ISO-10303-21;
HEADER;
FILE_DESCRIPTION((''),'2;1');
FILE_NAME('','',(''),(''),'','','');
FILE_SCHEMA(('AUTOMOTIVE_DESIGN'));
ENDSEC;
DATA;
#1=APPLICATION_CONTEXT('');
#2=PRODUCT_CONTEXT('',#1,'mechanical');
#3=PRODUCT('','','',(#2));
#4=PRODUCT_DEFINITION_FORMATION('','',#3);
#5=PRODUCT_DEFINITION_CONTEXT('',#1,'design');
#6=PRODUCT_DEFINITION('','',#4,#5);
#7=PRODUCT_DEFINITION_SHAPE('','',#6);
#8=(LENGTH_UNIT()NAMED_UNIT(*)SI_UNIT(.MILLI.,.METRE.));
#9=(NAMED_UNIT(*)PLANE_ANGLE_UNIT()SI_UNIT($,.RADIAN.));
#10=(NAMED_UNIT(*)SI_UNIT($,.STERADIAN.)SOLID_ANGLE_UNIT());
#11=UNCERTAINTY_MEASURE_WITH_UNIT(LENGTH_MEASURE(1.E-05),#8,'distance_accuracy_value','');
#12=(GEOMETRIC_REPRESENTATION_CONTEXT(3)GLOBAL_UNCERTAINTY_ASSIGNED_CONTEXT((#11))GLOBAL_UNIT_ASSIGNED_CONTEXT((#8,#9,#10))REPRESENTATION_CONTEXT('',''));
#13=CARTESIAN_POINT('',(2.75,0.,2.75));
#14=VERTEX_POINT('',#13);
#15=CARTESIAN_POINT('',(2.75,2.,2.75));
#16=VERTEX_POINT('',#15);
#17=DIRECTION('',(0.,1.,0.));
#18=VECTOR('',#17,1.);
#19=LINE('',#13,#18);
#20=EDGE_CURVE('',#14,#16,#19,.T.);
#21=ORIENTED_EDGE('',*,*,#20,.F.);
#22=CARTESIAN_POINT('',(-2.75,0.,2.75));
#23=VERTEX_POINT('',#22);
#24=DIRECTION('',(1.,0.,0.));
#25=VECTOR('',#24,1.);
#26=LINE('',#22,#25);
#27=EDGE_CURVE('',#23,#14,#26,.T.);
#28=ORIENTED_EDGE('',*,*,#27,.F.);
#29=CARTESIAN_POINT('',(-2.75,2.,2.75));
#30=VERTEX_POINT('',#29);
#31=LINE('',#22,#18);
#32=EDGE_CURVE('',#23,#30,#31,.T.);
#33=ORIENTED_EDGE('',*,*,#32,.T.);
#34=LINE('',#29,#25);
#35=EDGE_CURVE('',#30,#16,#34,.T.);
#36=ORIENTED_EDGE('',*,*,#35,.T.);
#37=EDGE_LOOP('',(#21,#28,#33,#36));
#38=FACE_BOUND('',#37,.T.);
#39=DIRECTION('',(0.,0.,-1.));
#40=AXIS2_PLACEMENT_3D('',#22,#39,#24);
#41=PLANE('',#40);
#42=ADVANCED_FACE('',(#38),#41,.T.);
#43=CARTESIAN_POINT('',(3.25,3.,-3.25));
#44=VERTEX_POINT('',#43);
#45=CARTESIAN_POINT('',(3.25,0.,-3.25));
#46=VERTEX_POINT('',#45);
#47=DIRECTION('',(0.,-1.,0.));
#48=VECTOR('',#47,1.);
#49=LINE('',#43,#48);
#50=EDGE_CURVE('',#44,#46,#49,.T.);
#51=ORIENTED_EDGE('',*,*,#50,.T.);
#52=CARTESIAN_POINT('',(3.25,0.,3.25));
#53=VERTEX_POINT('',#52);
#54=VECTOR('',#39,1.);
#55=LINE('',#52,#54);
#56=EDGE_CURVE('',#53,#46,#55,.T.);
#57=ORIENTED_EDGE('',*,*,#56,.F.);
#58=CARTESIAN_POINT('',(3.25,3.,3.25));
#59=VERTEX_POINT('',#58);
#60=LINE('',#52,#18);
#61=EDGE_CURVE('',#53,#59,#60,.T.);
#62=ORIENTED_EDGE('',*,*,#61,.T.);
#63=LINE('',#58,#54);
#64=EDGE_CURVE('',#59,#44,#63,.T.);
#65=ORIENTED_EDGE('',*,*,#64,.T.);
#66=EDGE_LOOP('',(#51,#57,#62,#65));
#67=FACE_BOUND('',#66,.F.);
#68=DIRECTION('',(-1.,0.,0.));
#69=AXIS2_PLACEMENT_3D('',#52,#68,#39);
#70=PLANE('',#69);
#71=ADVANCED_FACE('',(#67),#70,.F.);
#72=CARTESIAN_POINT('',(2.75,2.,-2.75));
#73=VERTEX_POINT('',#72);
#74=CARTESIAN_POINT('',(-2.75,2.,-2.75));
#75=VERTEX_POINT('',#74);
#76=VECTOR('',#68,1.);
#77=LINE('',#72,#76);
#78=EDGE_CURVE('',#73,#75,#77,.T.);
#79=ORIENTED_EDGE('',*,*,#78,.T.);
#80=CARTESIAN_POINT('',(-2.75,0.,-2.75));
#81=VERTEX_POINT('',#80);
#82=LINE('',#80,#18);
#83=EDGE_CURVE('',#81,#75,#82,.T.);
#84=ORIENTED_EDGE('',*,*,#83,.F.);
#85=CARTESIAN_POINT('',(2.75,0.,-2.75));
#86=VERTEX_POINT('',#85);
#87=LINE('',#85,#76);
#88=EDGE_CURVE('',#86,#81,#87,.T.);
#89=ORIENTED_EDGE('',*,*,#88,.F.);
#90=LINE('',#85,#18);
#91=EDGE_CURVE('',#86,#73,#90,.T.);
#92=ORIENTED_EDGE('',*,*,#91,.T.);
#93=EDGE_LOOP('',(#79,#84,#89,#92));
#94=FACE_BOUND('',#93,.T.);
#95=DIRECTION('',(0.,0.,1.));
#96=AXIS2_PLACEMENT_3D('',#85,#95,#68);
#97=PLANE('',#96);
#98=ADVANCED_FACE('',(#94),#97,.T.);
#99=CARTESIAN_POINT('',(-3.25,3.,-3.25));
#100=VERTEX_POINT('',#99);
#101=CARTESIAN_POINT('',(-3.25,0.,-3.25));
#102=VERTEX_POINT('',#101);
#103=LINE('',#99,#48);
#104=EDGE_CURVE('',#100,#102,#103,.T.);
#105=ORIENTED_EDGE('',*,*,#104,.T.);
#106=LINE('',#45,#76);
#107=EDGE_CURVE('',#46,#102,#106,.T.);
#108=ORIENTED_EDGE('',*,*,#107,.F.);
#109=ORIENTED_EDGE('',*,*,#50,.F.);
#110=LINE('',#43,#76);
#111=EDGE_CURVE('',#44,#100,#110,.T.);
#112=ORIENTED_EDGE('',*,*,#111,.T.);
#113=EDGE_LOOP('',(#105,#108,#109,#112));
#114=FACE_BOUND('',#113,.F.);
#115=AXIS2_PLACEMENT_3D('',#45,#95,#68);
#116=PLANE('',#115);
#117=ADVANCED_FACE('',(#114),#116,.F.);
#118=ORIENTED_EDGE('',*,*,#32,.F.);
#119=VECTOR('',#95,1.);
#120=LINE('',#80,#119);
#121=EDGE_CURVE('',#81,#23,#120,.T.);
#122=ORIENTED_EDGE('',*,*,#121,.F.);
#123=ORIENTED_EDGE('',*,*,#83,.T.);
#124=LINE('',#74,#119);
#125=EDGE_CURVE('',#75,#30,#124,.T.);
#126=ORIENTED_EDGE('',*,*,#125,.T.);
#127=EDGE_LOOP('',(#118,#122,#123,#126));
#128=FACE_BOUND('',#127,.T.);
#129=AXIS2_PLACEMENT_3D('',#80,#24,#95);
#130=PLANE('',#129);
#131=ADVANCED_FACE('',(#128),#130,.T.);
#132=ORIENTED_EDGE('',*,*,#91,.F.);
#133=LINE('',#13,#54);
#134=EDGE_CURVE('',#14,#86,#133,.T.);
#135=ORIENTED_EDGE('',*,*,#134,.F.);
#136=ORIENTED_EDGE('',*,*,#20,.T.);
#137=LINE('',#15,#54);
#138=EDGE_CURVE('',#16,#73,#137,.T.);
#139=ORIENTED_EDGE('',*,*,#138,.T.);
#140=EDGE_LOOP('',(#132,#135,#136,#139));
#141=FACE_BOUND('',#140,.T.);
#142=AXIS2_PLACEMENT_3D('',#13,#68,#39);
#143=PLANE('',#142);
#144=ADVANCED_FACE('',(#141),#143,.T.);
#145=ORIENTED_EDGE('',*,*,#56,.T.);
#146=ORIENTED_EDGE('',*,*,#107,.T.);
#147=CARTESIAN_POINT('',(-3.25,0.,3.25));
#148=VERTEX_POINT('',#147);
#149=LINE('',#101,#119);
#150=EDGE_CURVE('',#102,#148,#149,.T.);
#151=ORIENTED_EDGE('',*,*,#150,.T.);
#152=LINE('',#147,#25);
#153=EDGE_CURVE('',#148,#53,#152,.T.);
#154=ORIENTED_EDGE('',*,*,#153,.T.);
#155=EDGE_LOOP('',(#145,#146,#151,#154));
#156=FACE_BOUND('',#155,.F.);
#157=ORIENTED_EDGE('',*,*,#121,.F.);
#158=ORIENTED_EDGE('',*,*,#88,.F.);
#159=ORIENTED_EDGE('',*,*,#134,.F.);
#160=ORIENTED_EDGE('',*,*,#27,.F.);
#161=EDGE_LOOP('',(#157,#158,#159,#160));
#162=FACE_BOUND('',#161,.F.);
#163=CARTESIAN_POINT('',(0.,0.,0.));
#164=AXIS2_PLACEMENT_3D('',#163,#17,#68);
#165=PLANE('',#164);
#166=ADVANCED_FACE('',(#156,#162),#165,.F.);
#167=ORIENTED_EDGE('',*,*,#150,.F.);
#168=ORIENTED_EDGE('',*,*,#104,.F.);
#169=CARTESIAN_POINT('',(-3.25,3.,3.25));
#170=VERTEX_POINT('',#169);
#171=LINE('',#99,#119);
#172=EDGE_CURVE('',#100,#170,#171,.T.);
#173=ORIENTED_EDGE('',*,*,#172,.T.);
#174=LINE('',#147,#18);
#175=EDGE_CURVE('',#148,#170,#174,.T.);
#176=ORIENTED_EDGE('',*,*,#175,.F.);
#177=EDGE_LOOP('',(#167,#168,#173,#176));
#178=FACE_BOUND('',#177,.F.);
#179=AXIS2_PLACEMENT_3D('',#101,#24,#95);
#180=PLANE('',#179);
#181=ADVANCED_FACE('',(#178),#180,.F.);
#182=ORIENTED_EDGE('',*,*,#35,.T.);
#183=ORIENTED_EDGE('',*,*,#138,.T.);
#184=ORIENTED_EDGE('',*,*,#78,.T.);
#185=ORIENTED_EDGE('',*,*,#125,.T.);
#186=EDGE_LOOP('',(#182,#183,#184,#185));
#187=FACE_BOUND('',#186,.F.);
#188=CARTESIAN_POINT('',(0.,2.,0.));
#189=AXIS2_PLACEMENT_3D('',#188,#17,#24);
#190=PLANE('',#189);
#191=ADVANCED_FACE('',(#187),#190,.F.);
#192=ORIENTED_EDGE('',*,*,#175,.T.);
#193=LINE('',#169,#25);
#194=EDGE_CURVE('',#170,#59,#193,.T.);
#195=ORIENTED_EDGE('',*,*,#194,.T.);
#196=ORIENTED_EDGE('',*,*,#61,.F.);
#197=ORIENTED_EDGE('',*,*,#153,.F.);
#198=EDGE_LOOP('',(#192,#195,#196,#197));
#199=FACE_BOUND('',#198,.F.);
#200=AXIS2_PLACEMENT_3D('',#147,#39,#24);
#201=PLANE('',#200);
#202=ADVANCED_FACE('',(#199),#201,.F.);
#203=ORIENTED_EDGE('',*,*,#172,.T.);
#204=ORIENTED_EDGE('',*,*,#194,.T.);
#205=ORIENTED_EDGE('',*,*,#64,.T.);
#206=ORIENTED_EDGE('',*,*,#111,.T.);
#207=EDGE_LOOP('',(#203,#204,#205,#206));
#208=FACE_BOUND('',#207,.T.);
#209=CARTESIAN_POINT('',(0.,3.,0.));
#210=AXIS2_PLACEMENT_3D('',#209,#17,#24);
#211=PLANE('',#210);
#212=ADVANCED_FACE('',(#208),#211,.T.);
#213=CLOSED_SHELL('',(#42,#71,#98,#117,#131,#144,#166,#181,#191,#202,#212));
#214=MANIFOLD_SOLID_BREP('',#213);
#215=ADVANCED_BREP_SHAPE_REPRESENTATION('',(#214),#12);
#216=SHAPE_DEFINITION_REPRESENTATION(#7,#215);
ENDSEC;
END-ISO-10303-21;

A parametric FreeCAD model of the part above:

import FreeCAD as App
import Part
import Sketcher

doc = App.newDocument("Part")
body = doc.addObject("PartDesign::Body", "Body")

# Sketch on XZ plane
sketch1 = body.newObject("Sketcher::SketchObject", "Sketch")
sketch1.AttachmentSupport = (doc.getObject("XZ_Plane"), [""])
sketch1.MapMode = "FlatFace"
sketch1.addGeometry([
    Part.LineSegment(App.Vector(-3, -3, 0), App.Vector(-3, 3, 0)),  # 0
    Part.LineSegment(App.Vector(-3, 3, 0), App.Vector(3, 3, 0)),  # 1
    Part.LineSegment(App.Vector(3, 3, 0), App.Vector(3, -3, 0)),  # 2
    Part.LineSegment(App.Vector(3, -3, 0), App.Vector(-3, -3, 0)),  # 3
    Part.LineSegment(App.Vector(-3, -3, 0), App.Vector(3, -3, 0)),  # 4
    Part.LineSegment(App.Vector(3, -3, 0), App.Vector(3, 3, 0)),  # 5
    Part.LineSegment(App.Vector(3, 3, 0), App.Vector(-3, 3, 0)),  # 6
    Part.LineSegment(App.Vector(-3, 3, 0), App.Vector(-3, -3, 0)),  # 7
], False)
sketch1.addConstraint([
    Sketcher.Constraint("Coincident", 0, 2, 1, 1),
    Sketcher.Constraint("Coincident", 1, 2, 2, 1),
    Sketcher.Constraint("Coincident", 2, 2, 3, 1),
    Sketcher.Constraint("Coincident", 3, 2, 0, 1),
    Sketcher.Constraint("Coincident", 4, 2, 5, 1),
    Sketcher.Constraint("Coincident", 5, 2, 6, 1),
    Sketcher.Constraint("Coincident", 6, 2, 7, 1),
    Sketcher.Constraint("Coincident", 7, 2, 4, 1),
    Sketcher.Constraint("Vertical", 0),
    Sketcher.Constraint("Horizontal", 1),
    Sketcher.Constraint("Vertical", 2),
    Sketcher.Constraint("Horizontal", 3),
    Sketcher.Constraint("Horizontal", 4),
    Sketcher.Constraint("Vertical", 5),
    Sketcher.Constraint("Horizontal", 6),
    Sketcher.Constraint("Vertical", 7),
    Sketcher.Constraint("Symmetric", 0, 2, 2, 2, -1, 1),
    Sketcher.Constraint("Symmetric", 4, 2, 6, 2, -1, 1),
    Sketcher.Constraint("Equal", 3, 0),
    Sketcher.Constraint("Equal", 6, 5),
    Sketcher.Constraint("DistanceX", 1, 1, 1, 2, 6.5),
    Sketcher.Constraint("DistanceX", 4, 1, 4, 2, 5.5),
])
pad1 = body.newObject("PartDesign::Pad", "Pad")
pad1.Profile = sketch1
pad1.Length = 2
pad1.Reversed = True

# Sketch on XZ plane
sketch2 = body.newObject("Sketcher::SketchObject", "Sketch001")
sketch2.AttachmentSupport = (doc.getObject("XZ_Plane"), [""])
sketch2.MapMode = "FlatFace"
sketch2.AttachmentOffset = App.Placement(App.Vector(0, 0, -2), App.Rotation())
sketch2.addGeometry([
    Part.LineSegment(App.Vector(3, -3, 0), App.Vector(-3, -3, 0)),
    Part.LineSegment(App.Vector(-3, -3, 0), App.Vector(-3, 3, 0)),
    Part.LineSegment(App.Vector(-3, 3, 0), App.Vector(3, 3, 0)),
    Part.LineSegment(App.Vector(3, 3, 0), App.Vector(3, -3, 0)),
], False)
sketch2.addConstraint([
    Sketcher.Constraint("Coincident", 0, 2, 1, 1),
    Sketcher.Constraint("Coincident", 1, 2, 2, 1),
    Sketcher.Constraint("Coincident", 2, 2, 3, 1),
    Sketcher.Constraint("Coincident", 3, 2, 0, 1),
    Sketcher.Constraint("Horizontal", 0),
    Sketcher.Constraint("Vertical", 1),
    Sketcher.Constraint("Horizontal", 2),
    Sketcher.Constraint("Vertical", 3),
    Sketcher.Constraint("Symmetric", 0, 2, 2, 2, -1, 1),
    Sketcher.Constraint("Equal", 2, 1),
    Sketcher.Constraint("DistanceX", 0, 2, 0, 1, 6.5),
])
pad2 = body.newObject("PartDesign::Pad", "Pad001")
pad2.Profile = sketch2
pad2.Length = 1
pad2.Reversed = True

doc.recompute()
